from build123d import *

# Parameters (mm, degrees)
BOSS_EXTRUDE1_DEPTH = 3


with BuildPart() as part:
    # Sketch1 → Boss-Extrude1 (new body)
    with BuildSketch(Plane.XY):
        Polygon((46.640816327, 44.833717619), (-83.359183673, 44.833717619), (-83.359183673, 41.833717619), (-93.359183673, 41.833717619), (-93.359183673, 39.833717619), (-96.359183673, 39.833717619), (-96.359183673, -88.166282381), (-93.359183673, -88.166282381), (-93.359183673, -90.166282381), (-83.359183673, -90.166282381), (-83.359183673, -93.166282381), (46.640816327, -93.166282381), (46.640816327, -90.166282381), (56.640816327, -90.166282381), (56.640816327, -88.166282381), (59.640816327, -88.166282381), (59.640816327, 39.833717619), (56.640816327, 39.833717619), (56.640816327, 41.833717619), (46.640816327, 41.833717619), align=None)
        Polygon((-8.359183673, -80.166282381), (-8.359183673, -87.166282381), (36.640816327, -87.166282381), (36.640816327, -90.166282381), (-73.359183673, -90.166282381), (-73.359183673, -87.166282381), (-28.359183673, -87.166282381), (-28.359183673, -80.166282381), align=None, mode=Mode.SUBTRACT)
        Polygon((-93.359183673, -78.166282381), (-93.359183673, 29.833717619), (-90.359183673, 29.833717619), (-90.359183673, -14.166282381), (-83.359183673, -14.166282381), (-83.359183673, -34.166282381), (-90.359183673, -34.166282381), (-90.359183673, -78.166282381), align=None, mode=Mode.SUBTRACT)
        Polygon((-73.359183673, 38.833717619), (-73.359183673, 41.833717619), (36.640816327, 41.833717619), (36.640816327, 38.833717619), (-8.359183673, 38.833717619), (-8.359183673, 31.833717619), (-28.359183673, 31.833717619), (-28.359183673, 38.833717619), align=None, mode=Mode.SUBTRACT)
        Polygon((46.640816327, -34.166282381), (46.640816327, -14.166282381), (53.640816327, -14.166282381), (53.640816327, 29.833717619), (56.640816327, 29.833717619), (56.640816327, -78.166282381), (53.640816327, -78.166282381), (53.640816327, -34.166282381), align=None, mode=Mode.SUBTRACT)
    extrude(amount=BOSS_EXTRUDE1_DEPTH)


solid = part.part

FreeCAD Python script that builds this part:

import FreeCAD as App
import Part
import Sketcher
from FreeCAD import Vector
Q = App.Units.Quantity

doc = App.newDocument("Part")
params = doc.addObject("Spreadsheet::Sheet", "Params")
for row, (alias, value) in enumerate([
    ("sketch1_width", "130 mm"),
    ("sketch1_width2", "10 mm"),
    ("sketch1_width3", "3 mm"),
    ("sketch1_width4", "20 mm"),
    ("sketch1_width5", "45 mm"),
    ("pad1_length", "3 mm"),
], start=1):
    params.set(f"A{row}", alias)
    params.set(f"B{row}", "=" + value)
    params.setAlias(f"B{row}", alias)

body = doc.addObject("PartDesign::Body", "Body")

sketch1 = body.newObject("Sketcher::SketchObject", "Sketch")
sketch1.AttachmentSupport = (doc.getObject("XY_Plane"), [""])
sketch1.MapMode = "FlatFace"
sketch1.addGeometry(Part.LineSegment(Vector(46.6, 44.8, 0), Vector(-83.4, 44.8, 0)), False)
sketch1.addGeometry(Part.LineSegment(Vector(-83.4, 44.8, 0), Vector(-83.4, 41.8, 0)), False)
sketch1.addGeometry(Part.LineSegment(Vector(-83.4, 41.8, 0), Vector(-93.4, 41.8, 0)), False)
sketch1.addGeometry(Part.LineSegment(Vector(-93.4, 41.8, 0), Vector(-93.4, 39.8, 0)), False)
sketch1.addGeometry(Part.LineSegment(Vector(-93.4, 39.8, 0), Vector(-96.4, 39.8, 0)), False)
sketch1.addGeometry(Part.LineSegment(Vector(-96.4, 39.8, 0), Vector(-96.4, -88.2, 0)), False)
sketch1.addGeometry(Part.LineSegment(Vector(-96.4, -88.2, 0), Vector(-93.4, -88.2, 0)), False)
sketch1.addGeometry(Part.LineSegment(Vector(-93.4, -88.2, 0), Vector(-93.4, -90.2, 0)), False)
sketch1.addGeometry(Part.LineSegment(Vector(-93.4, -90.2, 0), Vector(-83.4, -90.2, 0)), False)
sketch1.addGeometry(Part.LineSegment(Vector(-83.4, -90.2, 0), Vector(-83.4, -93.2, 0)), False)
sketch1.addGeometry(Part.LineSegment(Vector(-83.4, -93.2, 0), Vector(46.6, -93.2, 0)), False)
sketch1.addGeometry(Part.LineSegment(Vector(46.6, -93.2, 0), Vector(46.6, -90.2, 0)), False)
sketch1.addGeometry(Part.LineSegment(Vector(46.6, -90.2, 0), Vector(56.6, -90.2, 0)), False)
sketch1.addGeometry(Part.LineSegment(Vector(56.6, -90.2, 0), Vector(56.6, -88.2, 0)), False)
sketch1.addGeometry(Part.LineSegment(Vector(56.6, -88.2, 0), Vector(59.6, -88.2, 0)), False)
sketch1.addGeometry(Part.LineSegment(Vector(59.6, -88.2, 0), Vector(59.6, 39.8, 0)), False)
sketch1.addGeometry(Part.LineSegment(Vector(59.6, 39.8, 0), Vector(56.6, 39.8, 0)), False)
sketch1.addGeometry(Part.LineSegment(Vector(56.6, 39.8, 0), Vector(56.6, 41.8, 0)), False)
sketch1.addGeometry(Part.LineSegment(Vector(56.6, 41.8, 0), Vector(46.6, 41.8, 0)), False)
sketch1.addGeometry(Part.LineSegment(Vector(46.6, 41.8, 0), Vector(46.6, 44.8, 0)), False)
sketch1.addGeometry(Part.LineSegment(Vector(-28.4, -80.2, 0), Vector(-8.4, -80.2, 0)), False)
sketch1.addGeometry(Part.LineSegment(Vector(-8.4, -80.2, 0), Vector(-8.4, -87.2, 0)), False)
sketch1.addGeometry(Part.LineSegment(Vector(-8.4, -87.2, 0), Vector(36.6, -87.2, 0)), False)
sketch1.addGeometry(Part.LineSegment(Vector(36.6, -87.2, 0), Vector(36.6, -90.2, 0)), False)
sketch1.addGeometry(Part.LineSegment(Vector(36.6, -90.2, 0), Vector(-73.4, -90.2, 0)), False)
sketch1.addGeometry(Part.LineSegment(Vector(-73.4, -90.2, 0), Vector(-73.4, -87.2, 0)), False)
sketch1.addGeometry(Part.LineSegment(Vector(-73.4, -87.2, 0), Vector(-28.4, -87.2, 0)), False)
sketch1.addGeometry(Part.LineSegment(Vector(-28.4, -87.2, 0), Vector(-28.4, -80.2, 0)), False)
sketch1.addGeometry(Part.LineSegment(Vector(-90.4, -78.2, 0), Vector(-93.4, -78.2, 0)), False)
sketch1.addGeometry(Part.LineSegment(Vector(-93.4, -78.2, 0), Vector(-93.4, 29.8, 0)), False)
sketch1.addGeometry(Part.LineSegment(Vector(-93.4, 29.8, 0), Vector(-90.4, 29.8, 0)), False)
sketch1.addGeometry(Part.LineSegment(Vector(-90.4, 29.8, 0), Vector(-90.4, -14.2, 0)), False)
sketch1.addGeometry(Part.LineSegment(Vector(-90.4, -14.2, 0), Vector(-83.4, -14.2, 0)), False)
sketch1.addGeometry(Part.LineSegment(Vector(-83.4, -14.2, 0), Vector(-83.4, -34.2, 0)), False)
sketch1.addGeometry(Part.LineSegment(Vector(-83.4, -34.2, 0), Vector(-90.4, -34.2, 0)), False)
sketch1.addGeometry(Part.LineSegment(Vector(-90.4, -34.2, 0), Vector(-90.4, -78.2, 0)), False)
sketch1.addGeometry(Part.LineSegment(Vector(53.6, -34.2, 0), Vector(46.6, -34.2, 0)), False)
sketch1.addGeometry(Part.LineSegment(Vector(46.6, -34.2, 0), Vector(46.6, -14.2, 0)), False)
sketch1.addGeometry(Part.LineSegment(Vector(46.6, -14.2, 0), Vector(53.6, -14.2, 0)), False)
sketch1.addGeometry(Part.LineSegment(Vector(53.6, -14.2, 0), Vector(53.6, 29.8, 0)), False)
sketch1.addGeometry(Part.LineSegment(Vector(53.6, 29.8, 0), Vector(56.6, 29.8, 0)), False)
sketch1.addGeometry(Part.LineSegment(Vector(56.6, 29.8, 0), Vector(56.6, -78.2, 0)), False)
sketch1.addGeometry(Part.LineSegment(Vector(56.6, -78.2, 0), Vector(53.6, -78.2, 0)), False)
sketch1.addGeometry(Part.LineSegment(Vector(53.6, -78.2, 0), Vector(53.6, -34.2, 0)), False)
sketch1.addGeometry(Part.LineSegment(Vector(-28.4, 38.8, 0), Vector(-73.4, 38.8, 0)), False)
sketch1.addGeometry(Part.LineSegment(Vector(-73.4, 38.8, 0), Vector(-73.4, 41.8, 0)), False)
sketch1.addGeometry(Part.LineSegment(Vector(-73.4, 41.8, 0), Vector(36.6, 41.8, 0)), False)
sketch1.addGeometry(Part.LineSegment(Vector(36.6, 41.8, 0), Vector(36.6, 38.8, 0)), False)
sketch1.addGeometry(Part.LineSegment(Vector(36.6, 38.8, 0), Vector(-8.4, 38.8, 0)), False)
sketch1.addGeometry(Part.LineSegment(Vector(-8.4, 38.8, 0), Vector(-8.4, 31.8, 0)), False)
sketch1.addGeometry(Part.LineSegment(Vector(-8.4, 31.8, 0), Vector(-28.4, 31.8, 0)), False)
sketch1.addGeometry(Part.LineSegment(Vector(-28.4, 31.8, 0), Vector(-28.4, 38.8, 0)), False)
sketch1.addConstraint(Sketcher.Constraint("Coincident", 0, 2, 1, 1))
sketch1.addConstraint(Sketcher.Constraint("Coincident", 1, 2, 2, 1))
sketch1.addConstraint(Sketcher.Constraint("Coincident", 2, 2, 3, 1))
sketch1.addConstraint(Sketcher.Constraint("Coincident", 3, 2, 4, 1))
sketch1.addConstraint(Sketcher.Constraint("Coincident", 4, 2, 5, 1))
sketch1.addConstraint(Sketcher.Constraint("Coincident", 5, 2, 6, 1))
sketch1.addConstraint(Sketcher.Constraint("Coincident", 6, 2, 7, 1))
sketch1.addConstraint(Sketcher.Constraint("Coincident", 7, 2, 8, 1))
sketch1.addConstraint(Sketcher.Constraint("Coincident", 8, 2, 9, 1))
sketch1.addConstraint(Sketcher.Constraint("Coincident", 9, 2, 10, 1))
sketch1.addConstraint(Sketcher.Constraint("Coincident", 10, 2, 11, 1))
sketch1.addConstraint(Sketcher.Constraint("Coincident", 11, 2, 12, 1))
sketch1.addConstraint(Sketcher.Constraint("Coincident", 12, 2, 13, 1))
sketch1.addConstraint(Sketcher.Constraint("Coincident", 13, 2, 14, 1))
sketch1.addConstraint(Sketcher.Constraint("Coincident", 14, 2, 15, 1))
sketch1.addConstraint(Sketcher.Constraint("Coincident", 15, 2, 16, 1))
sketch1.addConstraint(Sketcher.Constraint("Coincident", 16, 2, 17, 1))
sketch1.addConstraint(Sketcher.Constraint("Coincident", 17, 2, 18, 1))
sketch1.addConstraint(Sketcher.Constraint("Coincident", 18, 2, 19, 1))
sketch1.addConstraint(Sketcher.Constraint("Coincident", 19, 2, 0, 1))
sketch1.addConstraint(Sketcher.Constraint("Coincident", 20, 2, 21, 1))
sketch1.addConstraint(Sketcher.Constraint("Coincident", 21, 2, 22, 1))
sketch1.addConstraint(Sketcher.Constraint("Coincident", 22, 2, 23, 1))
sketch1.addConstraint(Sketcher.Constraint("Coincident", 23, 2, 24, 1))
sketch1.addConstraint(Sketcher.Constraint("Coincident", 24, 2, 25, 1))
sketch1.addConstraint(Sketcher.Constraint("Coincident", 25, 2, 26, 1))
sketch1.addConstraint(Sketcher.Constraint("Coincident", 26, 2, 27, 1))
sketch1.addConstraint(Sketcher.Constraint("Coincident", 27, 2, 20, 1))
sketch1.addConstraint(Sketcher.Constraint("Coincident", 28, 2, 29, 1))
sketch1.addConstraint(Sketcher.Constraint("Coincident", 29, 2, 30, 1))
sketch1.addConstraint(Sketcher.Constraint("Coincident", 30, 2, 31, 1))
sketch1.addConstraint(Sketcher.Constraint("Coincident", 31, 2, 32, 1))
sketch1.addConstraint(Sketcher.Constraint("Coincident", 32, 2, 33, 1))
sketch1.addConstraint(Sketcher.Constraint("Coincident", 33, 2, 34, 1))
sketch1.addConstraint(Sketcher.Constraint("Coincident", 34, 2, 35, 1))
sketch1.addConstraint(Sketcher.Constraint("Coincident", 35, 2, 28, 1))
sketch1.addConstraint(Sketcher.Constraint("Coincident", 36, 2, 37, 1))
sketch1.addConstraint(Sketcher.Constraint("Coincident", 37, 2, 38, 1))
sketch1.addConstraint(Sketcher.Constraint("Coincident", 38, 2, 39, 1))
sketch1.addConstraint(Sketcher.Constraint("Coincident", 39, 2, 40, 1))
sketch1.addConstraint(Sketcher.Constraint("Coincident", 40, 2, 41, 1))
sketch1.addConstraint(Sketcher.Constraint("Coincident", 41, 2, 42, 1))
sketch1.addConstraint(Sketcher.Constraint("Coincident", 42, 2, 43, 1))
sketch1.addConstraint(Sketcher.Constraint("Coincident", 43, 2, 36, 1))
sketch1.addConstraint(Sketcher.Constraint("Coincident", 44, 2, 45, 1))
sketch1.addConstraint(Sketcher.Constraint("Coincident", 45, 2, 46, 1))
sketch1.addConstraint(Sketcher.Constraint("Coincident", 46, 2, 47, 1))
sketch1.addConstraint(Sketcher.Constraint("Coincident", 47, 2, 48, 1))
sketch1.addConstraint(Sketcher.Constraint("Coincident", 48, 2, 49, 1))
sketch1.addConstraint(Sketcher.Constraint("Coincident", 49, 2, 50, 1))
sketch1.addConstraint(Sketcher.Constraint("Coincident", 50, 2, 51, 1))
sketch1.addConstraint(Sketcher.Constraint("Coincident", 51, 2, 44, 1))
sketch1.addConstraint(Sketcher.Constraint("Horizontal", 0))
sketch1.addConstraint(Sketcher.Constraint("Vertical", 1))
sketch1.addConstraint(Sketcher.Constraint("Horizontal", 2))
sketch1.addConstraint(Sketcher.Constraint("Vertical", 3))
sketch1.addConstraint(Sketcher.Constraint("Horizontal", 4))
sketch1.addConstraint(Sketcher.Constraint("Vertical", 5))
sketch1.addConstraint(Sketcher.Constraint("Horizontal", 6))
sketch1.addConstraint(Sketcher.Constraint("Vertical", 7))
sketch1.addConstraint(Sketcher.Constraint("Horizontal", 8))
sketch1.addConstraint(Sketcher.Constraint("Vertical", 9))
sketch1.addConstraint(Sketcher.Constraint("Horizontal", 10))
sketch1.addConstraint(Sketcher.Constraint("Vertical", 11))
sketch1.addConstraint(Sketcher.Constraint("Horizontal", 12))
sketch1.addConstraint(Sketcher.Constraint("Vertical", 13))
sketch1.addConstraint(Sketcher.Constraint("Horizontal", 14))
sketch1.addConstraint(Sketcher.Constraint("Vertical", 15))
sketch1.addConstraint(Sketcher.Constraint("Horizontal", 16))
sketch1.addConstraint(Sketcher.Constraint("Vertical", 17))
sketch1.addConstraint(Sketcher.Constraint("Horizontal", 18))
sketch1.addConstraint(Sketcher.Constraint("Vertical", 19))
sketch1.addConstraint(Sketcher.Constraint("Horizontal", 20))
sketch1.addConstraint(Sketcher.Constraint("Vertical", 21))
sketch1.addConstraint(Sketcher.Constraint("Horizontal", 22))
sketch1.addConstraint(Sketcher.Constraint("Vertical", 23))
sketch1.addConstraint(Sketcher.Constraint("Horizontal", 24))
sketch1.addConstraint(Sketcher.Constraint("Vertical", 25))
sketch1.addConstraint(Sketcher.Constraint("Horizontal", 26))
sketch1.addConstraint(Sketcher.Constraint("Vertical", 27))
sketch1.addConstraint(Sketcher.Constraint("Horizontal", 28))
sketch1.addConstraint(Sketcher.Constraint("Vertical", 29))
sketch1.addConstraint(Sketcher.Constraint("Horizontal", 30))
sketch1.addConstraint(Sketcher.Constraint("Vertical", 31))
sketch1.addConstraint(Sketcher.Constraint("Horizontal", 32))
sketch1.addConstraint(Sketcher.Constraint("Vertical", 33))
sketch1.addConstraint(Sketcher.Constraint("Horizontal", 34))
sketch1.addConstraint(Sketcher.Constraint("Vertical", 35))
sketch1.addConstraint(Sketcher.Constraint("Horizontal", 36))
sketch1.addConstraint(Sketcher.Constraint("Vertical", 37))
sketch1.addConstraint(Sketcher.Constraint("Horizontal", 38))
sketch1.addConstraint(Sketcher.Constraint("Vertical", 39))
sketch1.addConstraint(Sketcher.Constraint("Horizontal", 40))
sketch1.addConstraint(Sketcher.Constraint("Vertical", 41))
sketch1.addConstraint(Sketcher.Constraint("Horizontal", 42))
sketch1.addConstraint(Sketcher.Constraint("Vertical", 43))
sketch1.addConstraint(Sketcher.Constraint("Horizontal", 44))
sketch1.addConstraint(Sketcher.Constraint("Vertical", 45))
sketch1.addConstraint(Sketcher.Constraint("Horizontal", 46))
sketch1.addConstraint(Sketcher.Constraint("Vertical", 47))
sketch1.addConstraint(Sketcher.Constraint("Horizontal", 48))
sketch1.addConstraint(Sketcher.Constraint("Vertical", 49))
sketch1.addConstraint(Sketcher.Constraint("Horizontal", 50))
sketch1.addConstraint(Sketcher.Constraint("Vertical", 51))
sketch1.addConstraint(Sketcher.Constraint("Horizontal", 8, 2, 11, 2))
sketch1.addConstraint(Sketcher.Constraint("Horizontal", 6, 2, 13, 2))
sketch1.addConstraint(Sketcher.Constraint("Horizontal", 4, 2, 15, 2))
sketch1.addConstraint(Sketcher.Constraint("Horizontal", 2, 2, 17, 2))
sketch1.addConstraint(Sketcher.Constraint("Horizontal", 12, 2, 23, 2))
sketch1.addConstraint(Sketcher.Constraint("Horizontal", 22, 2, 25, 2))
sketch1.addConstraint(Sketcher.Constraint("Horizontal", 34, 2, 36, 2))
sketch1.addConstraint(Sketcher.Constraint("Horizontal", 32, 2, 37, 2))
sketch1.addConstraint(Sketcher.Constraint("Horizontal", 30, 2, 39, 2))
sketch1.addConstraint(Sketcher.Constraint("Horizontal", 35, 2, 41, 2))
sketch1.addConstraint(Sketcher.Constraint("Horizontal", 18, 2, 45, 2))
sketch1.addConstraint(Sketcher.Constraint("Horizontal", 44, 2, 47, 2))
sketch1.addConstraint(Sketcher.Constraint("Vertical", 3, 2, 6, 2))
sketch1.addConstraint(Sketcher.Constraint("Vertical", 1, 2, 8, 2))
sketch1.addConstraint(Sketcher.Constraint("Vertical", 13, 2, 16, 2))
sketch1.addConstraint(Sketcher.Constraint("Vertical", 11, 2, 18, 2))
sketch1.addConstraint(Sketcher.Constraint("Vertical", 7, 2, 28, 2))
sketch1.addConstraint(Sketcher.Constraint("Vertical", 9, 2, 32, 2))
sketch1.addConstraint(Sketcher.Constraint("Vertical", 31, 2, 34, 2))
sketch1.addConstraint(Sketcher.Constraint("Vertical", 19, 2, 36, 2))
sketch1.addConstraint(Sketcher.Constraint("Vertical", 17, 2, 40, 2))
sketch1.addConstraint(Sketcher.Constraint("Vertical", 39, 2, 42, 2))
sketch1.addConstraint(Sketcher.Constraint("Vertical", 25, 2, 44, 2))
sketch1.addConstraint(Sketcher.Constraint("Vertical", 23, 2, 46, 2))
sketch1.addConstraint(Sketcher.Constraint("Vertical", 21, 2, 48, 2))
sketch1.addConstraint(Sketcher.Constraint("Vertical", 27, 2, 50, 2))
sketch1.addConstraint(Sketcher.Constraint("Equal", 8, 12))
sketch1.addConstraint(Sketcher.Constraint("Equal", 6, 14))
sketch1.addConstraint(Sketcher.Constraint("Equal", 22, 26))
sketch1.addConstraint(Sketcher.Constraint("Equal", 16, 28))
sketch1.addConstraint(Sketcher.Constraint("Equal", 34, 36))
sketch1.addConstraint(Sketcher.Constraint("Equal", 42, 1))
sketch1.addConstraint(Sketcher.Constraint("Equal", 3, 7))
sketch1.addConstraint(Sketcher.Constraint("Equal", 1, 9))
sketch1.addConstraint(Sketcher.Constraint("Equal", 38, 21))
sketch1.addConstraint(Sketcher.Constraint("Equal", 19, 23))
sketch1.addConstraint(Sketcher.Constraint("Equal", 50, 33))
sketch1.addConstraint(Sketcher.Constraint("Equal", 31, 35))
sketch1.addConstraint(Sketcher.Constraint("Equal", 25, 45))
sketch1.addConstraint(Sketcher.Constraint("Equal", 27, 49))
sketch1.addConstraint(Sketcher.Constraint("DistanceX", 0, 2, 0, 1, Q("130 mm")))
sketch1.addConstraint(Sketcher.Constraint("DistanceX", 2, 2, 2, 1, Q("10 mm")))
sketch1.addConstraint(Sketcher.Constraint("DistanceX", 4, 2, 4, 1, Q("3 mm")))
sketch1.addConstraint(Sketcher.Constraint("DistanceX", 20, 1, 20, 2, Q("20 mm")))
sketch1.addConstraint(Sketcher.Constraint("DistanceX", 22, 1, 22, 2, Q("45 mm")))
sketch1.addConstraint(Sketcher.Constraint("DistanceY", 3, 2, 3, 1, Q("2 mm")))
sketch1.addConstraint(Sketcher.Constraint("DistanceY", 5, 2, 5, 1, Q("128 mm")))
sketch1.addConstraint(Sketcher.Constraint("DistanceY", 29, 1, 29, 2, Q("108 mm")))
sketch1.addConstraint(Sketcher.Constraint("DistanceX", 20, 2, 11, 2, Q("55 mm")))
sketch1.addConstraint(Sketcher.Constraint("DistanceY", 6, 2, 28, 2, Q("10 mm")))
sketch1.addConstraint(Sketcher.Constraint("DistanceX", 0, 2, -1, 1, Q("83.359184 mm")))
sketch1.addConstraint(Sketcher.Constraint("DistanceY", -1, 1, 0, 2, Q("44.833718 mm")))
sketch1.setExpression("Constraints[144]", "Params.sketch1_width")
sketch1.setExpression("Constraints[145]", "Params.sketch1_width2")
sketch1.setExpression("Constraints[146]", "Params.sketch1_width3")
sketch1.setExpression("Constraints[147]", "Params.sketch1_width4")
sketch1.setExpression("Constraints[148]", "Params.sketch1_width5")
pad1 = body.newObject("PartDesign::Pad", "Pad")
pad1.Profile = sketch1
pad1.setExpression("Length", "Params.pad1_length")

doc.recompute()
